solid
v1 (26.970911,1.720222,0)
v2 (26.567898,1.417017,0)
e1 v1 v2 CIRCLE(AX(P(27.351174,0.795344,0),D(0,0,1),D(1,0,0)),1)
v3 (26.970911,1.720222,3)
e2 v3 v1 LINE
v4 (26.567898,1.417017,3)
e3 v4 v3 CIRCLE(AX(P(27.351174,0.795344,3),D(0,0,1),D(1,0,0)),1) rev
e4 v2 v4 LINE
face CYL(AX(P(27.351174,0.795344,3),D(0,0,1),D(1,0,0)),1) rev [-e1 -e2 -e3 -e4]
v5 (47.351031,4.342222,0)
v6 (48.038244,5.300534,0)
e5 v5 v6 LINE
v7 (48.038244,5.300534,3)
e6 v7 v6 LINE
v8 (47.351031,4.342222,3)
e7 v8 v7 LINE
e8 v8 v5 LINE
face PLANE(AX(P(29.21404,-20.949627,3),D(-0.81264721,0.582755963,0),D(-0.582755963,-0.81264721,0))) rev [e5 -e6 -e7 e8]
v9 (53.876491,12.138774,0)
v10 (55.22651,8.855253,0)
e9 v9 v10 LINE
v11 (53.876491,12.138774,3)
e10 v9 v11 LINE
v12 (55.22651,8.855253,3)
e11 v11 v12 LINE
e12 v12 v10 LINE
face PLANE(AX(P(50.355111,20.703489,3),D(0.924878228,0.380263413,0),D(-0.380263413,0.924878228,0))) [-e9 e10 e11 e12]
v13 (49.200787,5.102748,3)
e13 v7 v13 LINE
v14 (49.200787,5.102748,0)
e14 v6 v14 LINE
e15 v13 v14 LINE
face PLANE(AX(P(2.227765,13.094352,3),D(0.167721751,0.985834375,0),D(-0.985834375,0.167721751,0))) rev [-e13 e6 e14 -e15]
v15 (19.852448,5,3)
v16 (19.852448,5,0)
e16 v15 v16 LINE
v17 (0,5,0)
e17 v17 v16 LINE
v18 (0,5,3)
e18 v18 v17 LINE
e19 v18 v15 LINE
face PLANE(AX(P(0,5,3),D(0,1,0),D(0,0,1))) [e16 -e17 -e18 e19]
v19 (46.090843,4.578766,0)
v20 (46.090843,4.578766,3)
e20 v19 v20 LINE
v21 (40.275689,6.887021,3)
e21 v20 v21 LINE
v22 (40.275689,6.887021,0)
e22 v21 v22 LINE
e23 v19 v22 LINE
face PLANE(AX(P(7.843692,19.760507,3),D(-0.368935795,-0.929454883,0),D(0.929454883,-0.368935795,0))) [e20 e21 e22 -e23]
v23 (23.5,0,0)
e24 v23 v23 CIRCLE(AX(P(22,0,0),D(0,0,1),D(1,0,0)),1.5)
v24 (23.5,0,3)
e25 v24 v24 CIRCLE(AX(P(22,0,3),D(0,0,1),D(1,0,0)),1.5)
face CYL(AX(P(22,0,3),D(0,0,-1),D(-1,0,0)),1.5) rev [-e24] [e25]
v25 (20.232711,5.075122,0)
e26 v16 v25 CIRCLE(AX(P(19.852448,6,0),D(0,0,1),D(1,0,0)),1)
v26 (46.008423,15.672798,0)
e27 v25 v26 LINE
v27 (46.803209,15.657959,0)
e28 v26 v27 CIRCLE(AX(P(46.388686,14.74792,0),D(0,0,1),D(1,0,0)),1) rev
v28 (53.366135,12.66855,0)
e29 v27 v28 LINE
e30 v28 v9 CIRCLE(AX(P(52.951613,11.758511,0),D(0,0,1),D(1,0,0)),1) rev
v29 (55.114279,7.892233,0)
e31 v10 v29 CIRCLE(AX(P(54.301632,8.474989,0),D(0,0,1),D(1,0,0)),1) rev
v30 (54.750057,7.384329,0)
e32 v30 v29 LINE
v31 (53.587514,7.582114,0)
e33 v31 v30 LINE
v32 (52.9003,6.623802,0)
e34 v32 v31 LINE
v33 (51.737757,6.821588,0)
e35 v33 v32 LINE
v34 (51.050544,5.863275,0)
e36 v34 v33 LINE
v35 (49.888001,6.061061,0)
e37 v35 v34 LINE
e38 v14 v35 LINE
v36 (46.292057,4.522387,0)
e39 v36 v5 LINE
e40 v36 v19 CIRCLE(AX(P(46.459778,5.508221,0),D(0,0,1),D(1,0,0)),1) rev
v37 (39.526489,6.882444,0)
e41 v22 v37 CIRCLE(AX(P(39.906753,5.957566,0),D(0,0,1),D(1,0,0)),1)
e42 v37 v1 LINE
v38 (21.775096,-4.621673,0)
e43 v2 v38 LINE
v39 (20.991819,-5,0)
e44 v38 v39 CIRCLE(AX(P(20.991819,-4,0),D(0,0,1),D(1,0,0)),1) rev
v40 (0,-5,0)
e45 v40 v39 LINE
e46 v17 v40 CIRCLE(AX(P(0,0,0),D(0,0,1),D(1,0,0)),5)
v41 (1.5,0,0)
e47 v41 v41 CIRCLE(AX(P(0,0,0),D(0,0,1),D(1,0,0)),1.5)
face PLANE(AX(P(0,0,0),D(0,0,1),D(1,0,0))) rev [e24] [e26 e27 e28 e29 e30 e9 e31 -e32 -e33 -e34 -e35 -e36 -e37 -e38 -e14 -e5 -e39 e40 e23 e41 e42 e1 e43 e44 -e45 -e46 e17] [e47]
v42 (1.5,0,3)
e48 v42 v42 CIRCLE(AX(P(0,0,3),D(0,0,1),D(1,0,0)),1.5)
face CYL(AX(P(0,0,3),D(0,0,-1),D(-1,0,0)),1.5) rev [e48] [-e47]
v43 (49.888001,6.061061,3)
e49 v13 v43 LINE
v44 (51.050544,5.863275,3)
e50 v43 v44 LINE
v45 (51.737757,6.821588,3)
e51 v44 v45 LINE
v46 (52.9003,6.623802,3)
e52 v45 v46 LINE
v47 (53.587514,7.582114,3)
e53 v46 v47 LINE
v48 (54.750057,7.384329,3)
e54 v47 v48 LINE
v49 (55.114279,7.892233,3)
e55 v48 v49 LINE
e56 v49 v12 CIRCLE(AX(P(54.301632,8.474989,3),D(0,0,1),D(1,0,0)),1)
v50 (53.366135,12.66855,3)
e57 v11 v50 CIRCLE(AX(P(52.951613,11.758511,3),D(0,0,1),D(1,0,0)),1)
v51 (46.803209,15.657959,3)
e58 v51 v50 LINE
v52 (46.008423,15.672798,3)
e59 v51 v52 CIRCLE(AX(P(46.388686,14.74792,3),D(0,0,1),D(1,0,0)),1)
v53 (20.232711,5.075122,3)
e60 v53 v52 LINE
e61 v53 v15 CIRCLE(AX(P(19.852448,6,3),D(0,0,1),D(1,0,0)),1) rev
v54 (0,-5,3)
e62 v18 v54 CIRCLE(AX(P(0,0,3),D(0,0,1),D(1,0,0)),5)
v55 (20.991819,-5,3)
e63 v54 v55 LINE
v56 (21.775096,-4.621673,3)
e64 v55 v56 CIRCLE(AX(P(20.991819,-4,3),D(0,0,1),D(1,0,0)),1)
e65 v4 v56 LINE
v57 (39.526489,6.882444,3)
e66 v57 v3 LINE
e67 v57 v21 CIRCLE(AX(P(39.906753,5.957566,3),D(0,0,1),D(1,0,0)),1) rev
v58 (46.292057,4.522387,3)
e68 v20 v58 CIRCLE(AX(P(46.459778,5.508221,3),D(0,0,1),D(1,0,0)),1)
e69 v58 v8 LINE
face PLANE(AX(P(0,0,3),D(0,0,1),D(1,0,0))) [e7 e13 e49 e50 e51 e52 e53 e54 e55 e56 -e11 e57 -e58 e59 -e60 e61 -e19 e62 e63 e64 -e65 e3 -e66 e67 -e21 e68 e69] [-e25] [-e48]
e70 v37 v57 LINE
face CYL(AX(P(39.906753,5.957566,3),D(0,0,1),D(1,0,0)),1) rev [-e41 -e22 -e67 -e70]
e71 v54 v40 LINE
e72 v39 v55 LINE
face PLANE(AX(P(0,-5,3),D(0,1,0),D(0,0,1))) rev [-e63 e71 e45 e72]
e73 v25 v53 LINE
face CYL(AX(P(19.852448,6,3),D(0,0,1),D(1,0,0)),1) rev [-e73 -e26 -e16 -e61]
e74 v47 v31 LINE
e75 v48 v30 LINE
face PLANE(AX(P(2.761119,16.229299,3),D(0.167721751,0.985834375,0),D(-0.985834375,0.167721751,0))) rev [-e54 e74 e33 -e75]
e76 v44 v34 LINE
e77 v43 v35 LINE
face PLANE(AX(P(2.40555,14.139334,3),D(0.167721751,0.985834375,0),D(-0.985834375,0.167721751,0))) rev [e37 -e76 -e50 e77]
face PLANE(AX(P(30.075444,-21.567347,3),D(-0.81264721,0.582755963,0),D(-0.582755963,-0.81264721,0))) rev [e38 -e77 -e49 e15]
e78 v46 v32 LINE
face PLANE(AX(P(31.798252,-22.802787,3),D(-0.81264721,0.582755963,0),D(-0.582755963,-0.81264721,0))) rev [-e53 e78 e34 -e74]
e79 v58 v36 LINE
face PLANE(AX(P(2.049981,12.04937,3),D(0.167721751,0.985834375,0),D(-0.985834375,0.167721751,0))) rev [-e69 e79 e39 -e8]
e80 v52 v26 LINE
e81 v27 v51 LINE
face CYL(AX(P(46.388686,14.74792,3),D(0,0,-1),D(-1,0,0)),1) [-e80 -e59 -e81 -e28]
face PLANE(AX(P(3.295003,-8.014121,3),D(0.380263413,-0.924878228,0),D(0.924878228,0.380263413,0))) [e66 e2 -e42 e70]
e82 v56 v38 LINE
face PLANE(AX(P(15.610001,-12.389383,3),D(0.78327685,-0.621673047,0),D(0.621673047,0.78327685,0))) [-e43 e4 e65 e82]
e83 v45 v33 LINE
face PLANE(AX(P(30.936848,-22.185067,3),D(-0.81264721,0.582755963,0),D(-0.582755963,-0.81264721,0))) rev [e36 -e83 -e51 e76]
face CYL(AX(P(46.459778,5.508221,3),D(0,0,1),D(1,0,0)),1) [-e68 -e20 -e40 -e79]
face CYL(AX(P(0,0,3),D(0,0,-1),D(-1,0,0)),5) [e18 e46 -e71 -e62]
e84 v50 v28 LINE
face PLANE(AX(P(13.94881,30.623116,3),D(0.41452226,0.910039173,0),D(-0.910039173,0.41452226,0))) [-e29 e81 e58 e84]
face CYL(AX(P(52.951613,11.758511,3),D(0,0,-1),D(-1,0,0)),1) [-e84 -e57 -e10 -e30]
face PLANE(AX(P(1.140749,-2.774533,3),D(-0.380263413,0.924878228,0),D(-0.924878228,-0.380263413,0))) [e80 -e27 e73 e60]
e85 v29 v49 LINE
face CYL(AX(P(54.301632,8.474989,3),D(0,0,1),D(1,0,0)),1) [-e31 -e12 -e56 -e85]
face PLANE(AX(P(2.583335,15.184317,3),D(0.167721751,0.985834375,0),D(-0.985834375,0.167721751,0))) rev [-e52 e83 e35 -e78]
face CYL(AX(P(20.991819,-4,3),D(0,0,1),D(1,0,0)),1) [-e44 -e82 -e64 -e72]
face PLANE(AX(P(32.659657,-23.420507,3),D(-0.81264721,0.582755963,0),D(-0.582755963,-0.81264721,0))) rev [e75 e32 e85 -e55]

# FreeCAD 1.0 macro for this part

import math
import FreeCAD as App
import Part
import Sketcher
Q = App.Units.Quantity


def edges_at(feature, points):
    """Names of the edges that pass closest to the given points."""
    edges = feature.Shape.Edges
    near = lambda p: min(range(len(edges)), key=lambda i: edges[i].distToShape(Part.Vertex(*p))[0])
    return sorted({f"Edge{near(p) + 1}" for p in points})

doc = App.newDocument("Part")
body = doc.addObject("PartDesign::Body", "Body")

# Sketch on XY plane
sketch1 = body.newObject("Sketcher::SketchObject", "Sketch")
sketch1.AttachmentSupport = (doc.getObject("XY_Plane"), [""])
sketch1.MapMode = "FlatFace"
sketch1.addGeometry([
    Part.LineSegment(App.Vector(20.1, 5, 0), App.Vector(0, 5, 0)),  # 0
    Part.ArcOfCircle(Part.Circle(App.Vector(0, 0, 0), App.Vector(0, 0, 1), 5), math.radians(90), math.radians(270)),  # 1
    Part.LineSegment(App.Vector(0, -5, 0), App.Vector(21.5, -5, 0)),  # 2
    Part.LineSegment(App.Vector(21.5, -5, 0), App.Vector(26.7, 1.6, 0)),  # 3
    Part.LineSegment(App.Vector(26.7, 1.6, 0), App.Vector(39.9, 7, 0)),  # 4
    Part.LineSegment(App.Vector(39.9, 7, 0), App.Vector(46.2, 4.5, 0)),  # 5
    Part.LineSegment(App.Vector(46.2, 4.5, 0), App.Vector(47.4, 4.3, 0)),  # 6
    Part.LineSegment(App.Vector(47.4, 4.3, 0), App.Vector(48, 5.3, 0)),  # 7
    Part.LineSegment(App.Vector(48, 5.3, 0), App.Vector(49.2, 5.1, 0)),  # 8
    Part.LineSegment(App.Vector(49.2, 5.1, 0), App.Vector(49.9, 6.1, 0)),  # 9
    Part.LineSegment(App.Vector(49.9, 6.1, 0), App.Vector(51.1, 5.9, 0)),  # 10
    Part.LineSegment(App.Vector(51.1, 5.9, 0), App.Vector(51.7, 6.8, 0)),  # 11
    Part.LineSegment(App.Vector(51.7, 6.8, 0), App.Vector(52.9, 6.6, 0)),  # 12
    Part.LineSegment(App.Vector(52.9, 6.6, 0), App.Vector(53.6, 7.6, 0)),  # 13
    Part.LineSegment(App.Vector(53.6, 7.6, 0), App.Vector(54.8, 7.4, 0)),  # 14
    Part.LineSegment(App.Vector(54.8, 7.4, 0), App.Vector(55.4, 8.3, 0)),  # 15
    Part.LineSegment(App.Vector(55.4, 8.3, 0), App.Vector(53.7, 12.5, 0)),  # 16
    Part.LineSegment(App.Vector(53.7, 12.5, 0), App.Vector(46.4, 15.8, 0)),  # 17
    Part.LineSegment(App.Vector(46.4, 15.8, 0), App.Vector(20.1, 5, 0)),  # 18
    Part.Circle(App.Vector(0, 0, 0), App.Vector(0, 0, 1), 1.5),  # 19
    Part.Circle(App.Vector(22, 0, 0), App.Vector(0, 0, 1), 1.5),  # 20
], False)
sketch1.addConstraint([
    Sketcher.Constraint("Tangent", 0, 2, 1, 1),
    Sketcher.Constraint("Tangent", 1, 2, 2, 1),
    Sketcher.Constraint("Coincident", 2, 2, 3, 1),
    Sketcher.Constraint("Coincident", 3, 2, 4, 1),
    Sketcher.Constraint("Coincident", 4, 2, 5, 1),
    Sketcher.Constraint("Coincident", 5, 2, 6, 1),
    Sketcher.Constraint("Coincident", 6, 2, 7, 1),
    Sketcher.Constraint("Coincident", 7, 2, 8, 1),
    Sketcher.Constraint("Coincident", 8, 2, 9, 1),
    Sketcher.Constraint("Coincident", 9, 2, 10, 1),
    Sketcher.Constraint("Coincident", 10, 2, 11, 1),
    Sketcher.Constraint("Coincident", 11, 2, 12, 1),
    Sketcher.Constraint("Coincident", 12, 2, 13, 1),
    Sketcher.Constraint("Coincident", 13, 2, 14, 1),
    Sketcher.Constraint("Coincident", 14, 2, 15, 1),
    Sketcher.Constraint("Coincident", 15, 2, 16, 1),
    Sketcher.Constraint("Coincident", 16, 2, 17, 1),
    Sketcher.Constraint("Coincident", 17, 2, 18, 1),
    Sketcher.Constraint("Coincident", 18, 2, 0, 1),
    Sketcher.Constraint("Horizontal", 0),
    Sketcher.Constraint("Horizontal", 2),
    Sketcher.Constraint("Coincident", 1, 3, -1, 1),
    Sketcher.Constraint("Coincident", 19, 3, -1, 1),
    Sketcher.Constraint("Equal", 19, 20),
    Sketcher.Constraint("PointOnObject", 20, 3, -1),
    Sketcher.Constraint("Parallel", 6, 8),
    Sketcher.Constraint("Parallel", 7, 9),
    Sketcher.Constraint("Parallel", 8, 10),
    Sketcher.Constraint("Parallel", 9, 11),
    Sketcher.Constraint("Parallel", 10, 12),
    Sketcher.Constraint("Parallel", 11, 13),
    Sketcher.Constraint("Parallel", 12, 14),
    Sketcher.Constraint("Parallel", 13, 15),
    Sketcher.Constraint("Perpendicular", 4, 16),
    Sketcher.Constraint("Perpendicular", 16, 18),
    Sketcher.Constraint("Equal", 6, 7),
    Sketcher.Constraint("Equal", 7, 8),
    Sketcher.Constraint("Equal", 8, 9),
    Sketcher.Constraint("Equal", 9, 10),
    Sketcher.Constraint("Equal", 10, 11),
    Sketcher.Constraint("Equal", 11, 12),
    Sketcher.Constraint("Equal", 12, 13),
    Sketcher.Constraint("Equal", 13, 14),
    Sketcher.Constraint("Equal", 14, 15),
    Sketcher.Constraint("Diameter", 19, Q("3 mm")),
    Sketcher.Constraint("Radius", 1, Q("5 mm")),
    Sketcher.Constraint("DistanceX", -1, 1, 20, 3, Q("22 mm")),
    Sketcher.Constraint("Distance", 16, Q("4.5 mm")),
    Sketcher.Constraint("Distance", 18, Q("28.5 mm")),
    Sketcher.Constraint("DistanceX", 0, 2, 0, 1, Q("20.05 mm")),
    Sketcher.Constraint("Angle", 4, Q("22.35 deg")),
    Sketcher.Constraint("Angle", 5, Q("-21.65 deg")),
    Sketcher.Constraint("Distance", 4, Q("14.24 mm")),
    Sketcher.Constraint("DistanceX", -1, 1, 9, 2, Q("49.888001 mm")),
    Sketcher.Constraint("DistanceX", -1, 1, 3, 2, Q("26.729898 mm")),
    Sketcher.Constraint("DistanceX", -1, 1, 12, 2, Q("52.9003 mm")),
    Sketcher.Constraint("DistanceX", 2, 1, 2, 2, Q("21.474824 mm")),
    Sketcher.Constraint("DistanceY", -1, 1, 3, 2, Q("1.62113 mm")),
    Sketcher.Constraint("DistanceX", -1, 1, 5, 2, Q("46.188488 mm")),
    Sketcher.Constraint("DistanceY", -1, 1, 6, 2, Q("4.342222 mm")),
])
pad1 = body.newObject("PartDesign::Pad", "Pad")
pad1.Profile = sketch1
pad1.Length = 3
doc.recompute()

fillet = body.newObject("PartDesign::Fillet", "Fillet")
fillet.Base = (pad1, edges_at(pad1, [
    (21.475, -5, 1.5),
    (20.05, 5, 1.5),
    (46.409, 15.838, 1.5),
    (53.726, 12.505, 1.5),
    (55.437, 8.343, 1.5),
    (46.188, 4.54, 1.5),
    (39.9, 7.036, 1.5),
    (26.73, 1.621, 1.5),
]))
fillet.Radius = 1

doc.recompute()
